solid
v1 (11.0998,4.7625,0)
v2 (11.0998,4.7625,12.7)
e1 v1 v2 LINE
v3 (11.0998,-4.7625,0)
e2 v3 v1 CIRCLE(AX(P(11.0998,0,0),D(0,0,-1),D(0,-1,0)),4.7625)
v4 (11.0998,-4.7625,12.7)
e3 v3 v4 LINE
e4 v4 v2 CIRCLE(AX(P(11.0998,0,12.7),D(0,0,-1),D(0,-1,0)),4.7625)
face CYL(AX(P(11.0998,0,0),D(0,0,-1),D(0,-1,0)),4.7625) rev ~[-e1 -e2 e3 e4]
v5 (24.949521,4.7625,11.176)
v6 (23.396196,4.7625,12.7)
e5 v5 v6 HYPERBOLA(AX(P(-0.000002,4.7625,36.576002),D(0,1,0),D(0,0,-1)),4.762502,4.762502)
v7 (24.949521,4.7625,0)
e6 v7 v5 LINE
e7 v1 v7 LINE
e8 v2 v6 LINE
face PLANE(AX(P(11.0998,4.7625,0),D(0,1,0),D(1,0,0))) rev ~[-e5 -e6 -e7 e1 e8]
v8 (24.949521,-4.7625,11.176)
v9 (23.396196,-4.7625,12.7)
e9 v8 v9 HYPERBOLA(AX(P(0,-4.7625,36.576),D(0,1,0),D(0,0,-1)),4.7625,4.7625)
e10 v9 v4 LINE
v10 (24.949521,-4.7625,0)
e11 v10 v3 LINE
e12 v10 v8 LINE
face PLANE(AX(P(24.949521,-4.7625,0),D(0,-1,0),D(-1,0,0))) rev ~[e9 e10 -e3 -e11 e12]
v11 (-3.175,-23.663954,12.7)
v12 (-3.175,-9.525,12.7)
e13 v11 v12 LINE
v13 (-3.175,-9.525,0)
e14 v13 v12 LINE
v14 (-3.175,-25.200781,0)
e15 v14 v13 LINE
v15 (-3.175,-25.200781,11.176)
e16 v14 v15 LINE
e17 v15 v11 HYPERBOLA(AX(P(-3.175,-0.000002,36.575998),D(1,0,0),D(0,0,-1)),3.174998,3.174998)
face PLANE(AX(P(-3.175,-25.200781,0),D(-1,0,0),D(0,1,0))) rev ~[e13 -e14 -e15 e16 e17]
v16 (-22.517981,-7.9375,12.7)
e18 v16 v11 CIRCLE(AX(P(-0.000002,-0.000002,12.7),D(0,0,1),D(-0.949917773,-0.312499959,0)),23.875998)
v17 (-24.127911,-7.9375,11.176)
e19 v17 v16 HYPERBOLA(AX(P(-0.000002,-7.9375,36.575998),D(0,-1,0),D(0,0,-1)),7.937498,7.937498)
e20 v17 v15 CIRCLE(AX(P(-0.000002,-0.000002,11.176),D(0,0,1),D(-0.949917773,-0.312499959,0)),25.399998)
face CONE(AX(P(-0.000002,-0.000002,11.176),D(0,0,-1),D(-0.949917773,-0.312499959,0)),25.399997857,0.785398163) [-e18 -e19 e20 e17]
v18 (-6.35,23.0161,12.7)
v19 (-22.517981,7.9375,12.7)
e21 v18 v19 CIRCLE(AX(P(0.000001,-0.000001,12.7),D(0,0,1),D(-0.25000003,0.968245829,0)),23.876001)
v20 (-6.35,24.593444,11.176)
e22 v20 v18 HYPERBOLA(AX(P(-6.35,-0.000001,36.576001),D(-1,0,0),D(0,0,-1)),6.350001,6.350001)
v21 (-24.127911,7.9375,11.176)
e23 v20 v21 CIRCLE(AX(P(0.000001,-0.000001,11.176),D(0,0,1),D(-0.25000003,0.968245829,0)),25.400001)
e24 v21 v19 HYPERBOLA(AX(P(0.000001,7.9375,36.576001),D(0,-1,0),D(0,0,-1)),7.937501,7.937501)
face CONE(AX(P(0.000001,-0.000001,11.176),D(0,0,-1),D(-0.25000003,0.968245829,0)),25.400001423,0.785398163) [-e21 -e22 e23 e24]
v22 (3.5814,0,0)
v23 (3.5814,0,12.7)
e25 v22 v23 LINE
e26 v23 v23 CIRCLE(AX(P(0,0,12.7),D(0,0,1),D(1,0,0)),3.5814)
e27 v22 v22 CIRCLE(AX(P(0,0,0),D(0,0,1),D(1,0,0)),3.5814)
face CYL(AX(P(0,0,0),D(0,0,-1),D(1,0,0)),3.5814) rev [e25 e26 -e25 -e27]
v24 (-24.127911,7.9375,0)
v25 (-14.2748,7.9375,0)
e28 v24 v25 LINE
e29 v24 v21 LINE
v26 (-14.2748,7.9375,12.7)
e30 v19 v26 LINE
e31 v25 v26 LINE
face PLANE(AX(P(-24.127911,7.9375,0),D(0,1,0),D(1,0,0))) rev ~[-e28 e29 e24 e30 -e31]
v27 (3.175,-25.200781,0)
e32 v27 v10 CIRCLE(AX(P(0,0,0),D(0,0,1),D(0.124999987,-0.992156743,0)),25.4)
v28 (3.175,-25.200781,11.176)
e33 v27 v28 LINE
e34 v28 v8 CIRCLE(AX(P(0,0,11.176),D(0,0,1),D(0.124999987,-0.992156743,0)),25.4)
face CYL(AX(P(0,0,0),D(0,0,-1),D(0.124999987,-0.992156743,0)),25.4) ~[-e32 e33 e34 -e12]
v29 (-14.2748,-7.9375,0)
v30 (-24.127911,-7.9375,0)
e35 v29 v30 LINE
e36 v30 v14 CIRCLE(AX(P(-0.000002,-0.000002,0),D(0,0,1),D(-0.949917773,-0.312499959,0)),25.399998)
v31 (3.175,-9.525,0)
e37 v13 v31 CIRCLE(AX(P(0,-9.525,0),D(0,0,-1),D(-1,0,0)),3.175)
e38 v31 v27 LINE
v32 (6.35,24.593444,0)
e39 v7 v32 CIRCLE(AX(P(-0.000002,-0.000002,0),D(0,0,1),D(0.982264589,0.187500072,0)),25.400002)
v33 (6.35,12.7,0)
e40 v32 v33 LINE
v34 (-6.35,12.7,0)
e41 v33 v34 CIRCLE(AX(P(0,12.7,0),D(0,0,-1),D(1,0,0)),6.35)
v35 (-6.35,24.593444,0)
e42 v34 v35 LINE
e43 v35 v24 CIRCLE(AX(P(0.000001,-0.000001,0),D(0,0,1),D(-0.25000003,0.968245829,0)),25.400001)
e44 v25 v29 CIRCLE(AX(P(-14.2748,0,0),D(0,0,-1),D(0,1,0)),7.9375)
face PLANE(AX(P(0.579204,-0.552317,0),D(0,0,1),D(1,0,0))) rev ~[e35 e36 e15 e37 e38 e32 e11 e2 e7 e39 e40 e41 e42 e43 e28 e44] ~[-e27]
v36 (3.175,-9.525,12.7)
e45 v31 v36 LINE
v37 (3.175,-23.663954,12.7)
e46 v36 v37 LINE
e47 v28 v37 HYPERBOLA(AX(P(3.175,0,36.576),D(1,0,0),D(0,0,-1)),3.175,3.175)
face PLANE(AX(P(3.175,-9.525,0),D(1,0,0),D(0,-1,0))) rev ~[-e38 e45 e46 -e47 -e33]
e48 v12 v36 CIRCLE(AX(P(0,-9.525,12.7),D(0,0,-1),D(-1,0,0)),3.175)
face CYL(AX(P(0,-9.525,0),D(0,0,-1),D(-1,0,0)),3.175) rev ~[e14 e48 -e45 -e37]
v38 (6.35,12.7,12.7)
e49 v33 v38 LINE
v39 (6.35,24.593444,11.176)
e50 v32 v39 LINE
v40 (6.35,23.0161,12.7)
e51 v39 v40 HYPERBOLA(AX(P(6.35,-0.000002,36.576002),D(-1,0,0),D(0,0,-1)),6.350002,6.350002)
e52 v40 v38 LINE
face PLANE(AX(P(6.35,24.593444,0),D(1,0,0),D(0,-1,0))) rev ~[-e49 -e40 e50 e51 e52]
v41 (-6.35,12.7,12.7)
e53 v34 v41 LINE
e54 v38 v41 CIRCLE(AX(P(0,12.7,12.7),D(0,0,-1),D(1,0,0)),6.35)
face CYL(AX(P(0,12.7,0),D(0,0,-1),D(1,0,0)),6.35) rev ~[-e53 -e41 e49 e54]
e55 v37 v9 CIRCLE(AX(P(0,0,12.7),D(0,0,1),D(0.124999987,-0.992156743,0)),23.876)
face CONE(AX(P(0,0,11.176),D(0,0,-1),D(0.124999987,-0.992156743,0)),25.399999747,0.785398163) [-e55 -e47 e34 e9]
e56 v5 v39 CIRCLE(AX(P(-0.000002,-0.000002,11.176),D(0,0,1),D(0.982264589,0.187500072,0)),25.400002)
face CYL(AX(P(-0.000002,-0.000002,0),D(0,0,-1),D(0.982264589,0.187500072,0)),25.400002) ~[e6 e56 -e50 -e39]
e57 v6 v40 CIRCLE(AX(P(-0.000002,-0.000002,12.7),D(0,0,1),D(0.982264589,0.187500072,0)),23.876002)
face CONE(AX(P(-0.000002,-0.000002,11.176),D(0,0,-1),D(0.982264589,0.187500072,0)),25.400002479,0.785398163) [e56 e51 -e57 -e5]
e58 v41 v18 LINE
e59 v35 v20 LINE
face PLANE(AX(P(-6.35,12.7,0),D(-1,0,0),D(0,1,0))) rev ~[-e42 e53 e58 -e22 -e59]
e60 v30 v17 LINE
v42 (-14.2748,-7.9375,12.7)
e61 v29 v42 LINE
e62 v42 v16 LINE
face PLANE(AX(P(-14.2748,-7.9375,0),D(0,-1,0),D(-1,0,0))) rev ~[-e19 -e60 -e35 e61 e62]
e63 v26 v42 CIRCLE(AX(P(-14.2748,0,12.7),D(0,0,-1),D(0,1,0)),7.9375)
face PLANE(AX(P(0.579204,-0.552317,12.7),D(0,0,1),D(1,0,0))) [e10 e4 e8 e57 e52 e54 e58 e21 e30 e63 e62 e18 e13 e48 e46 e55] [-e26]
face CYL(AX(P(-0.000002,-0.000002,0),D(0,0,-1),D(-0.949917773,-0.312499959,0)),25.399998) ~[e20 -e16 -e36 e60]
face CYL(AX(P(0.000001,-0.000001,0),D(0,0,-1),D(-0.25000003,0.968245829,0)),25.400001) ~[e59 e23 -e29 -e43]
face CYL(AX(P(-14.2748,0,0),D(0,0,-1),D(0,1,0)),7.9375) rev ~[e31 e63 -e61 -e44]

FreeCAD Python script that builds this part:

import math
import FreeCAD as App
import Part
import Sketcher

V = App.Vector
Q = App.Units.Quantity


def edges_at(feature, points):
    """Names of the edges that pass closest to the given points."""
    edges = feature.Shape.Edges
    near = lambda p: min(range(len(edges)), key=lambda i: edges[i].distToShape(Part.Vertex(*p))[0])
    return sorted({f"Edge{near(p) + 1}" for p in points})

doc = App.newDocument("Part")
params = doc.addObject("Spreadsheet::Sheet", "Params")
for row, (alias, value) in enumerate([
    ("sketch1_radius", "0.9999999 in"),
    ("sketch1_radius2", "0.25 in"),
    ("sketch1_diameter", "0.282 in"),
    ("sketch1_radius3", "0.125 in"),
    ("sketch1_radius4", "0.1875 in"),
    ("pad1_length", "0.5 in"),
    ("chamfer_size", "0.06 in"),
    ("chamfer_size2", "0.06 in"),
], start=1):
    params.set(f"A{row}", alias)
    params.set(f"B{row}", "=" + value)
    params.setAlias(f"B{row}", alias)

body = doc.addObject("PartDesign::Body", "Body")

# Sketch on XY plane
sketch1 = body.newObject("Sketcher::SketchObject", "Sketch")
sketch1.AttachmentSupport = (doc.getObject("XY_Plane"), [""])
sketch1.MapMode = "FlatFace"
sketch1.addGeometry([
    Part.LineSegment(V(-14.3, -7.9, 0), V(-24.1, -7.9, 0)),  # 0
    Part.ArcOfCircle(Part.Circle(V(0, 0, 0), V(0, 0, 1), 25.4), math.radians(-162), math.radians(-97)),  # 1
    Part.LineSegment(V(-3.2, -25.2, 0), V(-3.2, -9.5, 0)),  # 2
    Part.ArcOfCircle(Part.Circle(V(0, -9.5, 0), V(0, 0, 1), 3.2), math.radians(0), math.radians(180)),  # 3
    Part.LineSegment(V(3.2, -9.5, 0), V(3.2, -25.2, 0)),  # 4
    Part.ArcOfCircle(Part.Circle(V(0, 0, 0), V(0, 0, 1), 25.4), math.radians(-83), math.radians(-11)),  # 5
    Part.LineSegment(V(24.9, -4.8, 0), V(11.1, -4.8, 0)),  # 6
    Part.ArcOfCircle(Part.Circle(V(11.1, 0, 0), V(0, 0, 1), 4.8), math.radians(90), math.radians(270)),  # 7
    Part.LineSegment(V(11.1, 4.8, 0), V(24.9, 4.8, 0)),  # 8
    Part.ArcOfCircle(Part.Circle(V(0, 0, 0), V(0, 0, 1), 25.4), math.radians(11), math.radians(76)),  # 9
    Part.LineSegment(V(6.3, 24.6, 0), V(6.3, 12.7, 0)),  # 10
    Part.ArcOfCircle(Part.Circle(V(0, 12.7, 0), V(0, 0, 1), 6.3), math.radians(180), math.radians(360)),  # 11
    Part.LineSegment(V(-6.3, 12.7, 0), V(-6.3, 24.6, 0)),  # 12
    Part.ArcOfCircle(Part.Circle(V(0, 0, 0), V(0, 0, 1), 25.4), math.radians(104), math.radians(162)),  # 13
    Part.LineSegment(V(-24.1, 7.9, 0), V(-14.3, 7.9, 0)),  # 14
    Part.ArcOfCircle(Part.Circle(V(-14.3, 0, 0), V(0, 0, 1), 7.9), math.radians(-90), math.radians(90)),  # 15
    Part.Circle(V(0, 0, 0), V(0, 0, 1), 3.6),  # 16
], False)
sketch1.addConstraint([
    Sketcher.Constraint("Coincident", 0, 2, 1, 1),
    Sketcher.Constraint("Coincident", 1, 2, 2, 1),
    Sketcher.Constraint("Tangent", 2, 2, 3, 2),
    Sketcher.Constraint("Tangent", 3, 1, 4, 1),
    Sketcher.Constraint("Coincident", 4, 2, 5, 1),
    Sketcher.Constraint("Coincident", 5, 2, 6, 1),
    Sketcher.Constraint("Tangent", 6, 2, 7, 2),
    Sketcher.Constraint("Tangent", 7, 1, 8, 1),
    Sketcher.Constraint("Coincident", 8, 2, 9, 1),
    Sketcher.Constraint("Coincident", 9, 2, 10, 1),
    Sketcher.Constraint("Tangent", 10, 2, 11, 2),
    Sketcher.Constraint("Tangent", 11, 1, 12, 1),
    Sketcher.Constraint("Coincident", 12, 2, 13, 1),
    Sketcher.Constraint("Coincident", 13, 2, 14, 1),
    Sketcher.Constraint("Tangent", 14, 2, 15, 2),
    Sketcher.Constraint("Tangent", 15, 1, 0, 1),
    Sketcher.Constraint("Horizontal", 0),
    Sketcher.Constraint("Vertical", 2),
    Sketcher.Constraint("Vertical", 4),
    Sketcher.Constraint("Horizontal", 6),
    Sketcher.Constraint("Horizontal", 8),
    Sketcher.Constraint("Vertical", 10),
    Sketcher.Constraint("Vertical", 12),
    Sketcher.Constraint("Horizontal", 14),
    Sketcher.Constraint("Coincident", 1, 3, -1, 1),
    Sketcher.Constraint("Coincident", 5, 3, -1, 1),
    Sketcher.Constraint("Coincident", 9, 3, -1, 1),
    Sketcher.Constraint("Coincident", 13, 3, -1, 1),
    Sketcher.Constraint("Coincident", 16, 3, -1, 1),
    Sketcher.Constraint("Equal", 1, 5),
    Sketcher.Constraint("Equal", 9, 13),
    Sketcher.Constraint("Symmetric", 5, 2, 8, 2, -1),
    Sketcher.Constraint("PointOnObject", 3, 3, -2),
    Sketcher.Constraint("PointOnObject", 11, 3, -2),
    Sketcher.Constraint("PointOnObject", 15, 3, -1),
    Sketcher.Constraint("Radius", 1, Q("0.9999999 in")),
    Sketcher.Constraint("Radius", 11, Q("0.25 in")),
    Sketcher.Constraint("Diameter", 16, Q("0.282 in")),
    Sketcher.Constraint("Radius", 3, Q("0.125 in")),
    Sketcher.Constraint("Radius", 7, Q("0.1875 in")),
    Sketcher.Constraint("Radius", 15, Q("0.3125 in")),
    Sketcher.Constraint("DistanceY", -1, 1, 11, 3, Q("0.5 in")),
    Sketcher.Constraint("DistanceY", 3, 3, -1, 1, Q("0.375 in")),
    Sketcher.Constraint("DistanceX", -1, 1, 7, 3, Q("0.437 in")),
    Sketcher.Constraint("DistanceX", 15, 3, -1, 1, Q("0.562 in")),
])
sketch1.setExpression("Constraints[35]", "Params.sketch1_radius")
sketch1.setExpression("Constraints[36]", "Params.sketch1_radius2")
sketch1.setExpression("Constraints[37]", "Params.sketch1_diameter")
sketch1.setExpression("Constraints[38]", "Params.sketch1_radius3")
sketch1.setExpression("Constraints[39]", "Params.sketch1_radius4")
pad1 = body.newObject("PartDesign::Pad", "Pad")
pad1.Profile = sketch1
pad1.setExpression("Length", "Params.pad1_length")
doc.recompute()

chamfer = body.newObject("PartDesign::Chamfer", "Chamfer")
chamfer.Base = (pad1, edges_at(pad1, [
    (-17.366, 18.536, 12.7),
    (18.527, 17.376, 12.7),
    (17.383, -18.52, 12.7),
    (-16.151, -19.603, 12.7),
]))
chamfer.ChamferType = "Two distances"
chamfer.setExpression("Size", "Params.chamfer_size")
chamfer.setExpression("Size2", "Params.chamfer_size2")

doc.recompute()
